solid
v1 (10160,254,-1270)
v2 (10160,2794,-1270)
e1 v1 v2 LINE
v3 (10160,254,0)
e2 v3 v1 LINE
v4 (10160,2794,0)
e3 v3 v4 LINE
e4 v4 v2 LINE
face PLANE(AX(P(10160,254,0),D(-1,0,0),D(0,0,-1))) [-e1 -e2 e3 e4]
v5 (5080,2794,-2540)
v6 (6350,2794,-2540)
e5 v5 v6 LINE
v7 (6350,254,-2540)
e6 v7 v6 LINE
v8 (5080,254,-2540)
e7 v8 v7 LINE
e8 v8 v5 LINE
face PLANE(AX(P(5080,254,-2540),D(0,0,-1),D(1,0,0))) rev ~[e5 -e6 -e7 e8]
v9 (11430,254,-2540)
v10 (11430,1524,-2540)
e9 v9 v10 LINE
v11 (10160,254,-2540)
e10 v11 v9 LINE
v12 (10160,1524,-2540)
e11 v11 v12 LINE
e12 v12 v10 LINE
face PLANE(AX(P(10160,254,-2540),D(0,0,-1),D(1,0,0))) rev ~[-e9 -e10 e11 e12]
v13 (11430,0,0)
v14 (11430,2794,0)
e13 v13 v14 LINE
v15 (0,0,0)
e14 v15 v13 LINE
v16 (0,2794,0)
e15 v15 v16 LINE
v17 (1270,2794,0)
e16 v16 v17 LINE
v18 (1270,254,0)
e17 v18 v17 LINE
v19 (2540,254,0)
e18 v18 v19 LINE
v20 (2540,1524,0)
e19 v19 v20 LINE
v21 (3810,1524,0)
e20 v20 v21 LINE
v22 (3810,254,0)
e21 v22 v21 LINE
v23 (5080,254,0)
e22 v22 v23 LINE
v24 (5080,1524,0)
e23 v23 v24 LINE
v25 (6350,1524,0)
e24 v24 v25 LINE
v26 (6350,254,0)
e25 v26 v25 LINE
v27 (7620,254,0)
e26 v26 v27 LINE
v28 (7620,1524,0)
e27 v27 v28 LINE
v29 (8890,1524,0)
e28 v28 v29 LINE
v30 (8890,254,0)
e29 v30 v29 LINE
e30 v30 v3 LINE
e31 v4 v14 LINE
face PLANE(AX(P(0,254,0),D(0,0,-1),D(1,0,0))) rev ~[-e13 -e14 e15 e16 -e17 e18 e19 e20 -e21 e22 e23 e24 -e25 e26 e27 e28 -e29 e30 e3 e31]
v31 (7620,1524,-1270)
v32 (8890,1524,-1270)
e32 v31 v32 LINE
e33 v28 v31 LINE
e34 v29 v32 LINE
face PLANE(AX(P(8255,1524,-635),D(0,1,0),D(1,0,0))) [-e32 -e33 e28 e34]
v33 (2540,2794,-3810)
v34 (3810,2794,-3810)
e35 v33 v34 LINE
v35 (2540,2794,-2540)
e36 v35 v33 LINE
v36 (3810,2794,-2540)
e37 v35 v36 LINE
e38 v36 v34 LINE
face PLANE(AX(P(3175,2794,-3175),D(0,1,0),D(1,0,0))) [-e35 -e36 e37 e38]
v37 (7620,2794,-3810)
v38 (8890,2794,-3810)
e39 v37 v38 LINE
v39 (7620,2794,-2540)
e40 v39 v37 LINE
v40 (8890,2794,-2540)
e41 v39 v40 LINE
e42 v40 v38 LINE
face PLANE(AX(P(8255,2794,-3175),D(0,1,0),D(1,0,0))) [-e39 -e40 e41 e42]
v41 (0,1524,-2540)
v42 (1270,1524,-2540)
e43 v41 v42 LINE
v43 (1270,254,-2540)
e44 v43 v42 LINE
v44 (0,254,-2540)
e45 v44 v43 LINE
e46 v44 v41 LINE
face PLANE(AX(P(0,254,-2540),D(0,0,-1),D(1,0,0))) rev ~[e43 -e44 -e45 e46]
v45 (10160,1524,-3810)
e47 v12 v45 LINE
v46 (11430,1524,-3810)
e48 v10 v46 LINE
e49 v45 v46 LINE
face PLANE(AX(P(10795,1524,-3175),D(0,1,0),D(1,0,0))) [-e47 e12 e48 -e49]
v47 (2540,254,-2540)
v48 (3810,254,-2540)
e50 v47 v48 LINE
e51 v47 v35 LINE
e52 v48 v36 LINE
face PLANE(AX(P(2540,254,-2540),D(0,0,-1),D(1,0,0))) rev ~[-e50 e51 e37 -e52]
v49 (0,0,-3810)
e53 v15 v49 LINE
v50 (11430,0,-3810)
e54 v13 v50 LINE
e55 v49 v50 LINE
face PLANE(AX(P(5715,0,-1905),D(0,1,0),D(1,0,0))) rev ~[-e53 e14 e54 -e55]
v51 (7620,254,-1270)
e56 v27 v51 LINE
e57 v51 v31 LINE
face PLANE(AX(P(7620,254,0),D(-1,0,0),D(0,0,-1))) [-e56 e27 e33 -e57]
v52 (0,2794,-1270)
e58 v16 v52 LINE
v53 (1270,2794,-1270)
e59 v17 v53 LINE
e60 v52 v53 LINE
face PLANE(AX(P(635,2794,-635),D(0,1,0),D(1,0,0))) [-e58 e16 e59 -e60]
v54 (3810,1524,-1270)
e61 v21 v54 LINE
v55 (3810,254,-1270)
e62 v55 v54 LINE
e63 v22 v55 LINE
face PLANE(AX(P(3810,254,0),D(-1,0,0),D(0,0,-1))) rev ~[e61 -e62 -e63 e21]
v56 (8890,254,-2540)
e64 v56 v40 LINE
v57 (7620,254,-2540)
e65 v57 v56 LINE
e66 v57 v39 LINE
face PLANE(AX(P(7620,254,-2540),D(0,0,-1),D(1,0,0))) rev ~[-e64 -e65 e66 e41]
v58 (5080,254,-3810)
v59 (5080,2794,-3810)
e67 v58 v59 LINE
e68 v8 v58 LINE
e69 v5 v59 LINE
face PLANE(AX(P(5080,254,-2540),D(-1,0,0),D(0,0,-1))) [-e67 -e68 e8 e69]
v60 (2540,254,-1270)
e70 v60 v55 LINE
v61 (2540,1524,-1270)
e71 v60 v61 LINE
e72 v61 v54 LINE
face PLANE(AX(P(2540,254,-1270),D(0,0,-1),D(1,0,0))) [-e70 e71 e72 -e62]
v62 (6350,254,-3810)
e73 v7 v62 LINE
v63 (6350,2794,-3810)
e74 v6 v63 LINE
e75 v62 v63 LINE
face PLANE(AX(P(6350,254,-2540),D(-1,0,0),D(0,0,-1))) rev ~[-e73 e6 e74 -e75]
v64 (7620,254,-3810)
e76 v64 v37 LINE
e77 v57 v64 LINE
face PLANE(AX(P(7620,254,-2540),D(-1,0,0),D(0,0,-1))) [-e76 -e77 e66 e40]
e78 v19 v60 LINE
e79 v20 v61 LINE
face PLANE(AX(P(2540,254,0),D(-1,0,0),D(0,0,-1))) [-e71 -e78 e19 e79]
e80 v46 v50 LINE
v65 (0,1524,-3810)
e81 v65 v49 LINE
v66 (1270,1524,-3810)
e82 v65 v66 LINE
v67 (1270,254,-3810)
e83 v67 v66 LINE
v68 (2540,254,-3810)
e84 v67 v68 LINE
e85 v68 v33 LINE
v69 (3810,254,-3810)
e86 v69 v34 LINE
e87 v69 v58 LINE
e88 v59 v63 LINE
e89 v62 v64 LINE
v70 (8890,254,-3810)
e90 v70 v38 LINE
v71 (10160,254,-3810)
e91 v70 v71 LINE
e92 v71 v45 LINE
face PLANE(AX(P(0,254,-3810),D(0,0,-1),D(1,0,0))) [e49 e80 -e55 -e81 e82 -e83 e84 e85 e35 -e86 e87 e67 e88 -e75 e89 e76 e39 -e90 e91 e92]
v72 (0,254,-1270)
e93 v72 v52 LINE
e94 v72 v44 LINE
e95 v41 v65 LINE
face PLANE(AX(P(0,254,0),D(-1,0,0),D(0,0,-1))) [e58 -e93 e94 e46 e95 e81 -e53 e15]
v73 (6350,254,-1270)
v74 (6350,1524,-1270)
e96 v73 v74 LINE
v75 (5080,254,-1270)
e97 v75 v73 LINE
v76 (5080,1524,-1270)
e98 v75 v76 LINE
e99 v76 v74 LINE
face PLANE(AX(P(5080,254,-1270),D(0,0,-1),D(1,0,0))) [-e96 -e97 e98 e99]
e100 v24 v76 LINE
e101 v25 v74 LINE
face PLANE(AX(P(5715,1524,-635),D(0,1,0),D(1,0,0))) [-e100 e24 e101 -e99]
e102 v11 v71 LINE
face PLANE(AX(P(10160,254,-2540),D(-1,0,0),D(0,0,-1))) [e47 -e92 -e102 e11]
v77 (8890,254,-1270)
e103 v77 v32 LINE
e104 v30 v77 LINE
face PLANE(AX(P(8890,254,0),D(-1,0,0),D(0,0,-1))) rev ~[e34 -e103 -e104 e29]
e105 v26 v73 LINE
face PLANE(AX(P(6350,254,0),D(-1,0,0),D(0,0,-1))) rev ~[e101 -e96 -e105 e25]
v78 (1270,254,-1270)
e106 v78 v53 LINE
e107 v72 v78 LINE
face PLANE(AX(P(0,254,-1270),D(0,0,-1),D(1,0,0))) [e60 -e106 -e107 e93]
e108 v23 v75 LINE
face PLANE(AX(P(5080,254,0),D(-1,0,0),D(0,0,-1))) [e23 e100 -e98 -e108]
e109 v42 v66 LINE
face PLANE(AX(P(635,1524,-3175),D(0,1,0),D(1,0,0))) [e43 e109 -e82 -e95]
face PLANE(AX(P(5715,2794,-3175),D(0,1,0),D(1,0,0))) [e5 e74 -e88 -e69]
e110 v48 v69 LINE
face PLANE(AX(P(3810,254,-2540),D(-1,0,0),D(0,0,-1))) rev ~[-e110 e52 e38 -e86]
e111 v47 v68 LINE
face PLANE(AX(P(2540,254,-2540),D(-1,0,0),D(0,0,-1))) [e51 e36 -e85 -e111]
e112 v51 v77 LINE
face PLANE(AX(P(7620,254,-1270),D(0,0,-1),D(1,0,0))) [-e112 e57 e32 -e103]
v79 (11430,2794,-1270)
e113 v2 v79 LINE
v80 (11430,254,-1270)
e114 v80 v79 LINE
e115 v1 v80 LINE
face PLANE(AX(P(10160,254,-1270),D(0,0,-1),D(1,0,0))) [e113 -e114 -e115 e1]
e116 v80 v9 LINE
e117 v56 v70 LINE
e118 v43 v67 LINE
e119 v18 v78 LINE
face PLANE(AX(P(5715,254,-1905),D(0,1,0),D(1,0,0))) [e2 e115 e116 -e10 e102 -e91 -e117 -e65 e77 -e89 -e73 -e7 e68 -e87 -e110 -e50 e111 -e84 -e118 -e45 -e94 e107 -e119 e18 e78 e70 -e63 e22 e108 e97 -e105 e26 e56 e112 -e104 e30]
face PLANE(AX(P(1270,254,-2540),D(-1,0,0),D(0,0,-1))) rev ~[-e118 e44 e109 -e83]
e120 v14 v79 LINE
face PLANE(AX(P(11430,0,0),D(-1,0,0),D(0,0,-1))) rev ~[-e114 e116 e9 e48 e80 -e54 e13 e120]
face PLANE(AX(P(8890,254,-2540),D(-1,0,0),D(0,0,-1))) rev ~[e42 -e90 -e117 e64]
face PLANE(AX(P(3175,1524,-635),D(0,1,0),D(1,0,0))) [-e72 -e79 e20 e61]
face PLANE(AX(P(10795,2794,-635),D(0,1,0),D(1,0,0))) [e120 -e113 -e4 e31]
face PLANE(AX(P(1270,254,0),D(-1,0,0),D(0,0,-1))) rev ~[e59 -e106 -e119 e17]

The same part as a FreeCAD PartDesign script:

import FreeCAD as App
import Part
import Sketcher
Q = App.Units.Quantity


def add_polygon(sketch, points):
    """Adds a closed chain of lines whose ends are joined by coincident constraints."""
    first, n = sketch.GeometryCount, len(points)
    for a, b in zip(points, points[1:] + points[:1]):
        sketch.addGeometry(Part.LineSegment(App.Vector(*a, 0), App.Vector(*b, 0)), False)
    for i in range(n):
        sketch.addConstraint(Sketcher.Constraint("Coincident", first + i, 2, first + (i + 1) % n, 1))

doc = App.newDocument("Part")
body = doc.addObject("PartDesign::Body", "Body")

sketch1 = body.newObject("Sketcher::SketchObject", "Sketch")
sketch1.AttachmentSupport = (doc.getObject("XZ_Plane"), [""])
sketch1.MapMode = "FlatFace"
add_polygon(sketch1, [(0, -3810), (0, 0), (11430, 0), (11430, -3810)])
sketch1.addConstraint(Sketcher.Constraint("Vertical", 0))
sketch1.addConstraint(Sketcher.Constraint("Horizontal", 1))
sketch1.addConstraint(Sketcher.Constraint("Vertical", 2))
sketch1.addConstraint(Sketcher.Constraint("Horizontal", 3))
sketch1.addConstraint(Sketcher.Constraint("Coincident", 0, 2, -1, 1))
sketch1.addConstraint(Sketcher.Constraint("DistanceX", 1, 1, 1, 2, Q("450 in")))
sketch1.addConstraint(Sketcher.Constraint("DistanceY", 0, 1, 0, 2, Q("150 in")))
pad1 = body.newObject("PartDesign::Pad", "Pad")
pad1.Profile = sketch1
pad1.Length = Q("10 in")
pad1.Reversed = True

sketch2 = body.newObject("Sketcher::SketchObject", "Sketch001")
sketch2.AttachmentSupport = (doc.getObject("XZ_Plane"), [""])
sketch2.MapMode = "FlatFace"
sketch2.AttachmentOffset = App.Placement(App.Vector(0, 0, -10 * 25.4), App.Rotation())
add_polygon(sketch2, [(0, -3810), (0, -2540), (1270, -2540), (1270, -3810)])
add_polygon(sketch2, [(2540, -1270), (2540, 0), (3810, 0), (3810, -1270)])
add_polygon(sketch2, [(5080, -1270), (5080, 0), (6350, 0), (6350, -1270)])
add_polygon(sketch2, [(7620, -1270), (7620, 0), (8890, 0), (8890, -1270)])
add_polygon(sketch2, [(10160, -3810), (10160, -2540), (11430, -2540), (11430, -3810)])
sketch2.addConstraint(Sketcher.Constraint("Vertical", 0))
sketch2.addConstraint(Sketcher.Constraint("Horizontal", 1))
sketch2.addConstraint(Sketcher.Constraint("Vertical", 2))
sketch2.addConstraint(Sketcher.Constraint("Horizontal", 3))
sketch2.addConstraint(Sketcher.Constraint("Vertical", 4))
sketch2.addConstraint(Sketcher.Constraint("Horizontal", 5))
sketch2.addConstraint(Sketcher.Constraint("Vertical", 6))
sketch2.addConstraint(Sketcher.Constraint("Horizontal", 7))
sketch2.addConstraint(Sketcher.Constraint("Vertical", 8))
sketch2.addConstraint(Sketcher.Constraint("Horizontal", 9))
sketch2.addConstraint(Sketcher.Constraint("Vertical", 10))
sketch2.addConstraint(Sketcher.Constraint("Horizontal", 11))
sketch2.addConstraint(Sketcher.Constraint("Vertical", 12))
sketch2.addConstraint(Sketcher.Constraint("Horizontal", 13))
sketch2.addConstraint(Sketcher.Constraint("Vertical", 14))
sketch2.addConstraint(Sketcher.Constraint("Horizontal", 15))
sketch2.addConstraint(Sketcher.Constraint("Vertical", 16))
sketch2.addConstraint(Sketcher.Constraint("Horizontal", 17))
sketch2.addConstraint(Sketcher.Constraint("Vertical", 18))
sketch2.addConstraint(Sketcher.Constraint("Horizontal", 19))
sketch2.addConstraint(Sketcher.Constraint("PointOnObject", 0, 2, -2))
sketch2.addConstraint(Sketcher.Constraint("PointOnObject", 4, 2, -1))
sketch2.addConstraint(Sketcher.Constraint("PointOnObject", 8, 2, -1))
sketch2.addConstraint(Sketcher.Constraint("PointOnObject", 12, 2, -1))
sketch2.addConstraint(Sketcher.Constraint("Horizontal", 7, 2, 10, 2))
sketch2.addConstraint(Sketcher.Constraint("Horizontal", 11, 2, 14, 2))
sketch2.addConstraint(Sketcher.Constraint("Horizontal", 1, 2, 16, 2))
sketch2.addConstraint(Sketcher.Constraint("Horizontal", 3, 2, 18, 2))
sketch2.addConstraint(Sketcher.Constraint("Equal", 3, 5))
sketch2.addConstraint(Sketcher.Constraint("Equal", 7, 9))
sketch2.addConstraint(Sketcher.Constraint("Equal", 11, 13))
sketch2.addConstraint(Sketcher.Constraint("Equal", 15, 17))
sketch2.addConstraint(Sketcher.Constraint("Equal", 19, 0))
sketch2.addConstraint(Sketcher.Constraint("Equal", 2, 4))
sketch2.addConstraint(Sketcher.Constraint("DistanceX", 1, 1, 1, 2, Q("50 in")))
sketch2.addConstraint(Sketcher.Constraint("DistanceY", 0, 2, -1, 1, Q("100 in")))
sketch2.addConstraint(Sketcher.Constraint("DistanceX", -1, 1, 4, 2, Q("100 in")))
sketch2.addConstraint(Sketcher.Constraint("DistanceX", -1, 1, 8, 2, Q("200 in")))
sketch2.addConstraint(Sketcher.Constraint("DistanceX", -1, 1, 12, 2, Q("300 in")))
sketch2.addConstraint(Sketcher.Constraint("DistanceX", -1, 1, 16, 2, Q("400 in")))
pad2 = body.newObject("PartDesign::Pad", "Pad001")
pad2.Profile = sketch2
pad2.Length = Q("50 in")
pad2.Reversed = True

sketch3 = body.newObject("Sketcher::SketchObject", "Sketch002")
sketch3.AttachmentSupport = (doc.getObject("XZ_Plane"), [""])
sketch3.MapMode = "FlatFace"
sketch3.AttachmentOffset = App.Placement(App.Vector(0, 0, -10 * 25.4), App.Rotation())
add_polygon(sketch3, [(0, -1270), (0, 0), (1270, 0), (1270, -1270)])
add_polygon(sketch3, [(2540, -3810), (2540, -2540), (3810, -2540), (3810, -3810)])
add_polygon(sketch3, [(5080, -3810), (5080, -2540), (6350, -2540), (6350, -3810)])
add_polygon(sketch3, [(7620, -3810), (7620, -2540), (8890, -2540), (8890, -3810)])
add_polygon(sketch3, [(10160, -1270), (10160, 0), (11430, 0), (11430, -1270)])
sketch3.addConstraint(Sketcher.Constraint("Vertical", 0))
sketch3.addConstraint(Sketcher.Constraint("Horizontal", 1))
sketch3.addConstraint(Sketcher.Constraint("Vertical", 2))
sketch3.addConstraint(Sketcher.Constraint("Horizontal", 3))
sketch3.addConstraint(Sketcher.Constraint("Vertical", 4))
sketch3.addConstraint(Sketcher.Constraint("Horizontal", 5))
sketch3.addConstraint(Sketcher.Constraint("Vertical", 6))
sketch3.addConstraint(Sketcher.Constraint("Horizontal", 7))
sketch3.addConstraint(Sketcher.Constraint("Vertical", 8))
sketch3.addConstraint(Sketcher.Constraint("Horizontal", 9))
sketch3.addConstraint(Sketcher.Constraint("Vertical", 10))
sketch3.addConstraint(Sketcher.Constraint("Horizontal", 11))
sketch3.addConstraint(Sketcher.Constraint("Vertical", 12))
sketch3.addConstraint(Sketcher.Constraint("Horizontal", 13))
sketch3.addConstraint(Sketcher.Constraint("Vertical", 14))
sketch3.addConstraint(Sketcher.Constraint("Horizontal", 15))
sketch3.addConstraint(Sketcher.Constraint("Vertical", 16))
sketch3.addConstraint(Sketcher.Constraint("Horizontal", 17))
sketch3.addConstraint(Sketcher.Constraint("Vertical", 18))
sketch3.addConstraint(Sketcher.Constraint("Horizontal", 19))
sketch3.addConstraint(Sketcher.Constraint("Coincident", 0, 2, -1, 1))
sketch3.addConstraint(Sketcher.Constraint("PointOnObject", 16, 2, -1))
sketch3.addConstraint(Sketcher.Constraint("Horizontal", 5, 2, 8, 2))
sketch3.addConstraint(Sketcher.Constraint("Horizontal", 7, 2, 10, 2))
sketch3.addConstraint(Sketcher.Constraint("Horizontal", 9, 2, 12, 2))
sketch3.addConstraint(Sketcher.Constraint("Horizontal", 11, 2, 14, 2))
sketch3.addConstraint(Sketcher.Constraint("Horizontal", 3, 2, 18, 2))
sketch3.addConstraint(Sketcher.Constraint("Equal", 3, 5))
sketch3.addConstraint(Sketcher.Constraint("Equal", 7, 9))
sketch3.addConstraint(Sketcher.Constraint("Equal", 11, 13))
sketch3.addConstraint(Sketcher.Constraint("Equal", 15, 17))
sketch3.addConstraint(Sketcher.Constraint("Equal", 19, 0))
sketch3.addConstraint(Sketcher.Constraint("Equal", 2, 4))
sketch3.addConstraint(Sketcher.Constraint("DistanceX", 1, 1, 1, 2, Q("50 in")))
sketch3.addConstraint(Sketcher.Constraint("DistanceX", -1, 1, 4, 2, Q("100 in")))
sketch3.addConstraint(Sketcher.Constraint("DistanceY", 4, 2, -1, 1, Q("100 in")))
sketch3.addConstraint(Sketcher.Constraint("DistanceX", -1, 1, 8, 2, Q("200 in")))
sketch3.addConstraint(Sketcher.Constraint("DistanceX", -1, 1, 12, 2, Q("300 in")))
sketch3.addConstraint(Sketcher.Constraint("DistanceX", -1, 1, 16, 2, Q("400 in")))
pad3 = body.newObject("PartDesign::Pad", "Pad002")
pad3.Profile = sketch3
pad3.Length = Q("100 in")
pad3.Reversed = True

doc.recompute()
